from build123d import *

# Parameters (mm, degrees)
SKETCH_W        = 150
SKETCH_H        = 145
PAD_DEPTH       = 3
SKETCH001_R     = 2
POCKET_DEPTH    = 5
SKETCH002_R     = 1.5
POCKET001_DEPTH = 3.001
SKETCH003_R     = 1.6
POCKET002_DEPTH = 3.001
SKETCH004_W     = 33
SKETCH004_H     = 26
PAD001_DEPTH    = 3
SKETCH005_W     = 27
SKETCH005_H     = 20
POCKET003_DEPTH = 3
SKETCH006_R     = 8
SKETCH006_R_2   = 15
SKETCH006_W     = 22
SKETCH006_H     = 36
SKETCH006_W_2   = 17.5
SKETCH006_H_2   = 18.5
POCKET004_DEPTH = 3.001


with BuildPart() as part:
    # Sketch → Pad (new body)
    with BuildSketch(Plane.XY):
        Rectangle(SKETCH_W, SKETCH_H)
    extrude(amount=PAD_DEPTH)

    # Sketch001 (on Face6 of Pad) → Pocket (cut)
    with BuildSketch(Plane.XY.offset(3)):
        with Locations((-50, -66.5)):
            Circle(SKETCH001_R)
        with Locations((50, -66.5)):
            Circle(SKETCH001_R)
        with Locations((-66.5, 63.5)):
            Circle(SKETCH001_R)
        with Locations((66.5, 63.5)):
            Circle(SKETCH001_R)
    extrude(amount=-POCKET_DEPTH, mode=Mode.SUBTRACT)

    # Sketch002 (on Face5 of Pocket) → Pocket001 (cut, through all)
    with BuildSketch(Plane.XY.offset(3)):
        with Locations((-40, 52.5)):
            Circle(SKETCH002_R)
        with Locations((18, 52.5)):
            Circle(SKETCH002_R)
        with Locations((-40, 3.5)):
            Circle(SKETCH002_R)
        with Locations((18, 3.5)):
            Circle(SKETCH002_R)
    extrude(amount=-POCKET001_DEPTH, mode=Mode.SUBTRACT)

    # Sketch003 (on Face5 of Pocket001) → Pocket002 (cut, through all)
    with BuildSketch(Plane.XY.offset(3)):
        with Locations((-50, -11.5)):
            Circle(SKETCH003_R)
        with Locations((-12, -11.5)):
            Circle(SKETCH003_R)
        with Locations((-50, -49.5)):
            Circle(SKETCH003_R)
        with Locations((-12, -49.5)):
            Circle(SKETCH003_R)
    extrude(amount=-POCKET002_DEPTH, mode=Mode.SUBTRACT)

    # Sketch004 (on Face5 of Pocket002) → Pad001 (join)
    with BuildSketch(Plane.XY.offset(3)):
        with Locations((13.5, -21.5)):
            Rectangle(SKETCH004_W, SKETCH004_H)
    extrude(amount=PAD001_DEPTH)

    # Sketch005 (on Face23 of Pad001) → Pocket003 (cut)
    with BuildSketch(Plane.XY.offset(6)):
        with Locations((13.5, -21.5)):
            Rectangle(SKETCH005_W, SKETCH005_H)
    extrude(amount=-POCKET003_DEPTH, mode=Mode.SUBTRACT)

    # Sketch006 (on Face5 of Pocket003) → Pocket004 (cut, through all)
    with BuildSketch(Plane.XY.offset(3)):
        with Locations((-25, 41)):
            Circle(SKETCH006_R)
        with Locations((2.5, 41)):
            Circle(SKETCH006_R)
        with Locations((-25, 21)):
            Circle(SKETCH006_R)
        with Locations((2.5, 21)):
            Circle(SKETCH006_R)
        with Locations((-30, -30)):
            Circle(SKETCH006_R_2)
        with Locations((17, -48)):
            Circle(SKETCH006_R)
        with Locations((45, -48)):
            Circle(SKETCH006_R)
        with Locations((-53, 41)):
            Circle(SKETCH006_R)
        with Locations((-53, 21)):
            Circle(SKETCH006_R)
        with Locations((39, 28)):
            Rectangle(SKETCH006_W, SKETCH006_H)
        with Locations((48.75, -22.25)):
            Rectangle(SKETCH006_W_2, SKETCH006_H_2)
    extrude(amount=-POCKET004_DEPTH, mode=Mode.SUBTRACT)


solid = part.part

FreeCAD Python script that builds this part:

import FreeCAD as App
import Part
import Sketcher
Q = App.Units.Quantity

doc = App.newDocument("Part")
body = doc.addObject("PartDesign::Body", "Body")

sketch1 = body.newObject("Sketcher::SketchObject", "Sketch")
sketch1.AttachmentSupport = (doc.getObject("XY_Plane"), [""])
sketch1.MapMode = "FlatFace"
sketch1.addGeometry(Part.LineSegment(App.Vector(-75, 72, 0), App.Vector(-75, -72, 0)), False)
sketch1.addGeometry(Part.LineSegment(App.Vector(-75, -72, 0), App.Vector(75, -72, 0)), False)
sketch1.addGeometry(Part.LineSegment(App.Vector(75, -72, 0), App.Vector(75, 72, 0)), False)
sketch1.addGeometry(Part.LineSegment(App.Vector(75, 72, 0), App.Vector(-75, 72, 0)), False)
sketch1.addConstraint(Sketcher.Constraint("Coincident", 0, 2, 1, 1))
sketch1.addConstraint(Sketcher.Constraint("Coincident", 1, 2, 2, 1))
sketch1.addConstraint(Sketcher.Constraint("Coincident", 2, 2, 3, 1))
sketch1.addConstraint(Sketcher.Constraint("Coincident", 3, 2, 0, 1))
sketch1.addConstraint(Sketcher.Constraint("Vertical", 0))
sketch1.addConstraint(Sketcher.Constraint("Horizontal", 1))
sketch1.addConstraint(Sketcher.Constraint("Vertical", 2))
sketch1.addConstraint(Sketcher.Constraint("Horizontal", 3))
sketch1.addConstraint(Sketcher.Constraint("Symmetric", 0, 2, 2, 2, -1, 1))
sketch1.addConstraint(Sketcher.Constraint("DistanceX", 1, 1, 1, 2, Q("150 mm")))
sketch1.addConstraint(Sketcher.Constraint("DistanceY", 0, 2, 0, 1, Q("145 mm")))
pad1 = body.newObject("PartDesign::Pad", "Pad")
pad1.Profile = sketch1
pad1.Length = 3

sketch2 = body.newObject("Sketcher::SketchObject", "Sketch001")
sketch2.AttachmentSupport = (doc.getObject("XY_Plane"), [""])
sketch2.MapMode = "FlatFace"
sketch2.AttachmentOffset = App.Placement(App.Vector(0, 0, 3), App.Rotation())
sketch2.addGeometry(Part.Circle(App.Vector(-50, -66.5, 0), App.Vector(0, 0, 1), 2), False)
sketch2.addGeometry(Part.Circle(App.Vector(50, -66.5, 0), App.Vector(0, 0, 1), 2), False)
sketch2.addGeometry(Part.Circle(App.Vector(-66.5, 63.5, 0), App.Vector(0, 0, 1), 2), False)
sketch2.addGeometry(Part.Circle(App.Vector(66.5, 63.5, 0), App.Vector(0, 0, 1), 2), False)
sketch2.addConstraint(Sketcher.Constraint("Equal", 0, 1))
sketch2.addConstraint(Sketcher.Constraint("Equal", 1, 2))
sketch2.addConstraint(Sketcher.Constraint("Equal", 2, 3))
sketch2.addConstraint(Sketcher.Constraint("Symmetric", 0, 3, 1, 3, -2))
sketch2.addConstraint(Sketcher.Constraint("Symmetric", 2, 3, 3, 3, -2))
sketch2.addConstraint(Sketcher.Constraint("Diameter", 0, Q("4 mm")))
sketch2.addConstraint(Sketcher.Constraint("DistanceX", 0, 3, -1, 1, Q("50 mm")))
sketch2.addConstraint(Sketcher.Constraint("DistanceY", 0, 3, 2, 3, Q("130 mm")))
sketch2.addConstraint(Sketcher.Constraint("DistanceX", 2, 3, 3, 3, Q("133 mm")))
sketch2.addConstraint(Sketcher.Constraint("DistanceY", 0, 3, -1, 1, Q("66.5 mm")))
pocket1 = body.newObject("PartDesign::Pocket", "Pocket")
pocket1.Profile = sketch2
pocket1.Length = 5

sketch3 = body.newObject("Sketcher::SketchObject", "Sketch002")
sketch3.AttachmentSupport = (doc.getObject("XY_Plane"), [""])
sketch3.MapMode = "FlatFace"
sketch3.AttachmentOffset = App.Placement(App.Vector(0, 0, 3), App.Rotation())
sketch3.addGeometry(Part.Circle(App.Vector(-40, 52.5, 0), App.Vector(0, 0, 1), 1.5), False)
sketch3.addGeometry(Part.Circle(App.Vector(18, 52.5, 0), App.Vector(0, 0, 1), 1.5), False)
sketch3.addGeometry(Part.Circle(App.Vector(-40, 3.5, 0), App.Vector(0, 0, 1), 1.5), False)
sketch3.addGeometry(Part.Circle(App.Vector(18, 3.5, 0), App.Vector(0, 0, 1), 1.5), False)
sketch3.addConstraint(Sketcher.Constraint("Equal", 0, 1))
sketch3.addConstraint(Sketcher.Constraint("Equal", 1, 2))
sketch3.addConstraint(Sketcher.Constraint("Equal", 2, 3))
sketch3.addConstraint(Sketcher.Constraint("Horizontal", 0, 3, 1, 3))
sketch3.addConstraint(Sketcher.Constraint("Horizontal", 2, 3, 3, 3))
sketch3.addConstraint(Sketcher.Constraint("Vertical", 0, 3, 2, 3))
sketch3.addConstraint(Sketcher.Constraint("Vertical", 1, 3, 3, 3))
sketch3.addConstraint(Sketcher.Constraint("Diameter", 0, Q("3 mm")))
sketch3.addConstraint(Sketcher.Constraint("DistanceX", 0, 3, -1, 1, Q("40 mm")))
sketch3.addConstraint(Sketcher.Constraint("DistanceX", -1, 1, 1, 3, Q("18 mm")))
sketch3.addConstraint(Sketcher.Constraint("DistanceY", 2, 3, 0, 3, Q("49 mm")))
sketch3.addConstraint(Sketcher.Constraint("DistanceY", -1, 1, 0, 3, Q("52.5 mm")))
pocket2 = body.newObject("PartDesign::Pocket", "Pocket001")
pocket2.Profile = sketch3
pocket2.Type = "ThroughAll"

sketch4 = body.newObject("Sketcher::SketchObject", "Sketch003")
sketch4.AttachmentSupport = (doc.getObject("XY_Plane"), [""])
sketch4.MapMode = "FlatFace"
sketch4.AttachmentOffset = App.Placement(App.Vector(0, 0, 3), App.Rotation())
sketch4.addGeometry(Part.Circle(App.Vector(-50, -11.5, 0), App.Vector(0, 0, 1), 1.6), False)
sketch4.addGeometry(Part.Circle(App.Vector(-12, -11.5, 0), App.Vector(0, 0, 1), 1.6), False)
sketch4.addGeometry(Part.Circle(App.Vector(-50, -49.5, 0), App.Vector(0, 0, 1), 1.6), False)
sketch4.addGeometry(Part.Circle(App.Vector(-12, -49.5, 0), App.Vector(0, 0, 1), 1.6), False)
sketch4.addConstraint(Sketcher.Constraint("Equal", 0, 1))
sketch4.addConstraint(Sketcher.Constraint("Equal", 1, 2))
sketch4.addConstraint(Sketcher.Constraint("Equal", 2, 3))
sketch4.addConstraint(Sketcher.Constraint("Horizontal", 0, 3, 1, 3))
sketch4.addConstraint(Sketcher.Constraint("Horizontal", 2, 3, 3, 3))
sketch4.addConstraint(Sketcher.Constraint("Vertical", 0, 3, 2, 3))
sketch4.addConstraint(Sketcher.Constraint("Vertical", 1, 3, 3, 3))
sketch4.addConstraint(Sketcher.Constraint("Diameter", 0, Q("3.2 mm")))
sketch4.addConstraint(Sketcher.Constraint("DistanceX", 0, 3, -1, 1, Q("50 mm")))
sketch4.addConstraint(Sketcher.Constraint("DistanceX", 1, 3, -1, 1, Q("12 mm")))
sketch4.addConstraint(Sketcher.Constraint("DistanceY", 2, 3, 0, 3, Q("38 mm")))
sketch4.addConstraint(Sketcher.Constraint("DistanceY", 0, 3, -1, 1, Q("11.5 mm")))
pocket3 = body.newObject("PartDesign::Pocket", "Pocket002")
pocket3.Profile = sketch4
pocket3.Type = "ThroughAll"

sketch5 = body.newObject("Sketcher::SketchObject", "Sketch004")
sketch5.AttachmentSupport = (doc.getObject("XY_Plane"), [""])
sketch5.MapMode = "FlatFace"
sketch5.AttachmentOffset = App.Placement(App.Vector(0, 0, 3), App.Rotation())
sketch5.addGeometry(Part.LineSegment(App.Vector(-3, -8, 0), App.Vector(-3, -34, 0)), False)
sketch5.addGeometry(Part.LineSegment(App.Vector(-3, -34, 0), App.Vector(30, -34, 0)), False)
sketch5.addGeometry(Part.LineSegment(App.Vector(30, -34, 0), App.Vector(30, -8, 0)), False)
sketch5.addGeometry(Part.LineSegment(App.Vector(30, -8, 0), App.Vector(-3, -8, 0)), False)
sketch5.addConstraint(Sketcher.Constraint("Coincident", 0, 2, 1, 1))
sketch5.addConstraint(Sketcher.Constraint("Coincident", 1, 2, 2, 1))
sketch5.addConstraint(Sketcher.Constraint("Coincident", 2, 2, 3, 1))
sketch5.addConstraint(Sketcher.Constraint("Coincident", 3, 2, 0, 1))
sketch5.addConstraint(Sketcher.Constraint("Vertical", 0))
sketch5.addConstraint(Sketcher.Constraint("Horizontal", 1))
sketch5.addConstraint(Sketcher.Constraint("Vertical", 2))
sketch5.addConstraint(Sketcher.Constraint("Horizontal", 3))
sketch5.addConstraint(Sketcher.Constraint("DistanceX", 1, 1, 1, 2, Q("33 mm")))
sketch5.addConstraint(Sketcher.Constraint("DistanceY", 0, 2, 0, 1, Q("26 mm")))
sketch5.addConstraint(Sketcher.Constraint("DistanceX", 0, 2, -1, 1, Q("3 mm")))
sketch5.addConstraint(Sketcher.Constraint("DistanceY", 0, 2, -1, 1, Q("34.5 mm")))
pad2 = body.newObject("PartDesign::Pad", "Pad001")
pad2.Profile = sketch5
pad2.Length = 3

sketch6 = body.newObject("Sketcher::SketchObject", "Sketch005")
sketch6.AttachmentSupport = (doc.getObject("XY_Plane"), [""])
sketch6.MapMode = "FlatFace"
sketch6.AttachmentOffset = App.Placement(App.Vector(0, 0, 6), App.Rotation())
sketch6.addGeometry(Part.LineSegment(App.Vector(0, -12, 0), App.Vector(0, -32, 0)), False)
sketch6.addGeometry(Part.LineSegment(App.Vector(0, -32, 0), App.Vector(27, -32, 0)), False)
sketch6.addGeometry(Part.LineSegment(App.Vector(27, -32, 0), App.Vector(27, -12, 0)), False)
sketch6.addGeometry(Part.LineSegment(App.Vector(27, -12, 0), App.Vector(0, -12, 0)), False)
sketch6.addConstraint(Sketcher.Constraint("Coincident", 0, 2, 1, 1))
sketch6.addConstraint(Sketcher.Constraint("Coincident", 1, 2, 2, 1))
sketch6.addConstraint(Sketcher.Constraint("Coincident", 2, 2, 3, 1))
sketch6.addConstraint(Sketcher.Constraint("Coincident", 3, 2, 0, 1))
sketch6.addConstraint(Sketcher.Constraint("Vertical", 0))
sketch6.addConstraint(Sketcher.Constraint("Horizontal", 1))
sketch6.addConstraint(Sketcher.Constraint("Vertical", 2))
sketch6.addConstraint(Sketcher.Constraint("Horizontal", 3))
sketch6.addConstraint(Sketcher.Constraint("PointOnObject", 0, 2, -2))
sketch6.addConstraint(Sketcher.Constraint("DistanceX", 1, 1, 1, 2, Q("27 mm")))
sketch6.addConstraint(Sketcher.Constraint("DistanceY", 0, 2, 0, 1, Q("20 mm")))
sketch6.addConstraint(Sketcher.Constraint("DistanceY", 0, 2, -1, 1, Q("31.5 mm")))
pocket4 = body.newObject("PartDesign::Pocket", "Pocket003")
pocket4.Profile = sketch6
pocket4.Length = 3

sketch7 = body.newObject("Sketcher::SketchObject", "Sketch006")
sketch7.AttachmentSupport = (doc.getObject("XY_Plane"), [""])
sketch7.MapMode = "FlatFace"
sketch7.AttachmentOffset = App.Placement(App.Vector(0, 0, 3), App.Rotation())
sketch7.addGeometry(Part.Circle(App.Vector(-25, 41, 0), App.Vector(0, 0, 1), 8), False)
sketch7.addGeometry(Part.Circle(App.Vector(2, 41, 0), App.Vector(0, 0, 1), 8), False)
sketch7.addGeometry(Part.Circle(App.Vector(-25, 21, 0), App.Vector(0, 0, 1), 8), False)
sketch7.addGeometry(Part.Circle(App.Vector(2, 21, 0), App.Vector(0, 0, 1), 8), False)
sketch7.addGeometry(Part.Circle(App.Vector(-30, -30, 0), App.Vector(0, 0, 1), 15), False)
sketch7.addGeometry(Part.Circle(App.Vector(17, -48, 0), App.Vector(0, 0, 1), 8), False)
sketch7.addGeometry(Part.Circle(App.Vector(45, -48, 0), App.Vector(0, 0, 1), 8), False)
sketch7.addGeometry(Part.Circle(App.Vector(-53, 41, 0), App.Vector(0, 0, 1), 8), False)
sketch7.addGeometry(Part.Circle(App.Vector(-53, 21, 0), App.Vector(0, 0, 1), 8), False)
sketch7.addGeometry(Part.LineSegment(App.Vector(28, 46, 0), App.Vector(28, 10, 0)), False)
sketch7.addGeometry(Part.LineSegment(App.Vector(28, 10, 0), App.Vector(50, 10, 0)), False)
sketch7.addGeometry(Part.LineSegment(App.Vector(50, 10, 0), App.Vector(50, 46, 0)), False)
sketch7.addGeometry(Part.LineSegment(App.Vector(50, 46, 0), App.Vector(28, 46, 0)), False)
sketch7.addGeometry(Part.LineSegment(App.Vector(40, -13, 0), App.Vector(40, -32, 0)), False)
sketch7.addGeometry(Part.LineSegment(App.Vector(40, -32, 0), App.Vector(58, -32, 0)), False)
sketch7.addGeometry(Part.LineSegment(App.Vector(58, -32, 0), App.Vector(58, -13, 0)), False)
sketch7.addGeometry(Part.LineSegment(App.Vector(58, -13, 0), App.Vector(40, -13, 0)), False)
sketch7.addConstraint(Sketcher.Constraint("Coincident", 9, 2, 10, 1))
sketch7.addConstraint(Sketcher.Constraint("Coincident", 10, 2, 11, 1))
sketch7.addConstraint(Sketcher.Constraint("Coincident", 11, 2, 12, 1))
sketch7.addConstraint(Sketcher.Constraint("Coincident", 12, 2, 9, 1))
sketch7.addConstraint(Sketcher.Constraint("Coincident", 13, 2, 14, 1))
sketch7.addConstraint(Sketcher.Constraint("Coincident", 14, 2, 15, 1))
sketch7.addConstraint(Sketcher.Constraint("Coincident", 15, 2, 16, 1))
sketch7.addConstraint(Sketcher.Constraint("Coincident", 16, 2, 13, 1))
sketch7.addConstraint(Sketcher.Constraint("Vertical", 9))
sketch7.addConstraint(Sketcher.Constraint("Horizontal", 10))
sketch7.addConstraint(Sketcher.Constraint("Vertical", 11))
sketch7.addConstraint(Sketcher.Constraint("Horizontal", 12))
sketch7.addConstraint(Sketcher.Constraint("Vertical", 13))
sketch7.addConstraint(Sketcher.Constraint("Horizontal", 14))
sketch7.addConstraint(Sketcher.Constraint("Vertical", 15))
sketch7.addConstraint(Sketcher.Constraint("Horizontal", 16))
sketch7.addConstraint(Sketcher.Constraint("Equal", 0, 1))
sketch7.addConstraint(Sketcher.Constraint("Equal", 1, 2))
sketch7.addConstraint(Sketcher.Constraint("Equal", 2, 3))
sketch7.addConstraint(Sketcher.Constraint("Equal", 3, 5))
sketch7.addConstraint(Sketcher.Constraint("Equal", 5, 6))
sketch7.addConstraint(Sketcher.Constraint("Equal", 6, 7))
sketch7.addConstraint(Sketcher.Constraint("Equal", 7, 8))
sketch7.addConstraint(Sketcher.Constraint("Horizontal", 0, 3, 1, 3))
sketch7.addConstraint(Sketcher.Constraint("Horizontal", 2, 3, 3, 3))
sketch7.addConstraint(Sketcher.Constraint("Horizontal", 5, 3, 6, 3))
sketch7.addConstraint(Sketcher.Constraint("Horizontal", 1, 3, 7, 3))
sketch7.addConstraint(Sketcher.Constraint("Horizontal", 3, 3, 8, 3))
sketch7.addConstraint(Sketcher.Constraint("Vertical", 0, 3, 2, 3))
sketch7.addConstraint(Sketcher.Constraint("Vertical", 1, 3, 3, 3))
sketch7.addConstraint(Sketcher.Constraint("Vertical", 7, 3, 8, 3))
sketch7.addConstraint(Sketcher.Constraint("Diameter", 0, Q("16 mm")))
sketch7.addConstraint(Sketcher.Constraint("Diameter", 4, Q("30 mm")))
sketch7.addConstraint(Sketcher.Constraint("DistanceX", 10, 1, 10, 2, Q("22 mm")))
sketch7.addConstraint(Sketcher.Constraint("DistanceY", 9, 2, 9, 1, Q("36 mm")))
sketch7.addConstraint(Sketcher.Constraint("DistanceX", 14, 1, 14, 2, Q("17.5 mm")))
sketch7.addConstraint(Sketcher.Constraint("DistanceY", 13, 2, 13, 1, Q("18.5 mm")))
sketch7.addConstraint(Sketcher.Constraint("DistanceX", 0, 3, -1, 1, Q("25 mm")))
sketch7.addConstraint(Sketcher.Constraint("DistanceY", -1, 1, 0, 3, Q("41 mm")))
sketch7.addConstraint(Sketcher.Constraint("DistanceY", -1, 1, 2, 3, Q("21 mm")))
sketch7.addConstraint(Sketcher.Constraint("DistanceX", 4, 3, -1, 1, Q("30 mm")))
sketch7.addConstraint(Sketcher.Constraint("DistanceY", 4, 3, -1, 1, Q("30 mm")))
sketch7.addConstraint(Sketcher.Constraint("DistanceX", -1, 1, 5, 3, Q("17 mm")))
sketch7.addConstraint(Sketcher.Constraint("DistanceY", 5, 3, -1, 1, Q("48 mm")))
sketch7.addConstraint(Sketcher.Constraint("DistanceX", -1, 1, 6, 3, Q("45 mm")))
sketch7.addConstraint(Sketcher.Constraint("DistanceX", 7, 3, -1, 1, Q("53 mm")))
sketch7.addConstraint(Sketcher.Constraint("DistanceX", -1, 1, 9, 2, Q("28 mm")))
sketch7.addConstraint(Sketcher.Constraint("DistanceY", -1, 1, 9, 2, Q("10 mm")))
sketch7.addConstraint(Sketcher.Constraint("DistanceX", -1, 1, 13, 2, Q("40 mm")))
sketch7.addConstraint(Sketcher.Constraint("DistanceY", 15, 2, -1, 1, Q("13 mm")))
sketch7.addConstraint(Sketcher.Constraint("DistanceX", -1, 1, 1, 3, Q("2.5 mm")))
pocket5 = body.newObject("PartDesign::Pocket", "Pocket004")
pocket5.Profile = sketch7
pocket5.Type = "ThroughAll"

doc.recompute()
